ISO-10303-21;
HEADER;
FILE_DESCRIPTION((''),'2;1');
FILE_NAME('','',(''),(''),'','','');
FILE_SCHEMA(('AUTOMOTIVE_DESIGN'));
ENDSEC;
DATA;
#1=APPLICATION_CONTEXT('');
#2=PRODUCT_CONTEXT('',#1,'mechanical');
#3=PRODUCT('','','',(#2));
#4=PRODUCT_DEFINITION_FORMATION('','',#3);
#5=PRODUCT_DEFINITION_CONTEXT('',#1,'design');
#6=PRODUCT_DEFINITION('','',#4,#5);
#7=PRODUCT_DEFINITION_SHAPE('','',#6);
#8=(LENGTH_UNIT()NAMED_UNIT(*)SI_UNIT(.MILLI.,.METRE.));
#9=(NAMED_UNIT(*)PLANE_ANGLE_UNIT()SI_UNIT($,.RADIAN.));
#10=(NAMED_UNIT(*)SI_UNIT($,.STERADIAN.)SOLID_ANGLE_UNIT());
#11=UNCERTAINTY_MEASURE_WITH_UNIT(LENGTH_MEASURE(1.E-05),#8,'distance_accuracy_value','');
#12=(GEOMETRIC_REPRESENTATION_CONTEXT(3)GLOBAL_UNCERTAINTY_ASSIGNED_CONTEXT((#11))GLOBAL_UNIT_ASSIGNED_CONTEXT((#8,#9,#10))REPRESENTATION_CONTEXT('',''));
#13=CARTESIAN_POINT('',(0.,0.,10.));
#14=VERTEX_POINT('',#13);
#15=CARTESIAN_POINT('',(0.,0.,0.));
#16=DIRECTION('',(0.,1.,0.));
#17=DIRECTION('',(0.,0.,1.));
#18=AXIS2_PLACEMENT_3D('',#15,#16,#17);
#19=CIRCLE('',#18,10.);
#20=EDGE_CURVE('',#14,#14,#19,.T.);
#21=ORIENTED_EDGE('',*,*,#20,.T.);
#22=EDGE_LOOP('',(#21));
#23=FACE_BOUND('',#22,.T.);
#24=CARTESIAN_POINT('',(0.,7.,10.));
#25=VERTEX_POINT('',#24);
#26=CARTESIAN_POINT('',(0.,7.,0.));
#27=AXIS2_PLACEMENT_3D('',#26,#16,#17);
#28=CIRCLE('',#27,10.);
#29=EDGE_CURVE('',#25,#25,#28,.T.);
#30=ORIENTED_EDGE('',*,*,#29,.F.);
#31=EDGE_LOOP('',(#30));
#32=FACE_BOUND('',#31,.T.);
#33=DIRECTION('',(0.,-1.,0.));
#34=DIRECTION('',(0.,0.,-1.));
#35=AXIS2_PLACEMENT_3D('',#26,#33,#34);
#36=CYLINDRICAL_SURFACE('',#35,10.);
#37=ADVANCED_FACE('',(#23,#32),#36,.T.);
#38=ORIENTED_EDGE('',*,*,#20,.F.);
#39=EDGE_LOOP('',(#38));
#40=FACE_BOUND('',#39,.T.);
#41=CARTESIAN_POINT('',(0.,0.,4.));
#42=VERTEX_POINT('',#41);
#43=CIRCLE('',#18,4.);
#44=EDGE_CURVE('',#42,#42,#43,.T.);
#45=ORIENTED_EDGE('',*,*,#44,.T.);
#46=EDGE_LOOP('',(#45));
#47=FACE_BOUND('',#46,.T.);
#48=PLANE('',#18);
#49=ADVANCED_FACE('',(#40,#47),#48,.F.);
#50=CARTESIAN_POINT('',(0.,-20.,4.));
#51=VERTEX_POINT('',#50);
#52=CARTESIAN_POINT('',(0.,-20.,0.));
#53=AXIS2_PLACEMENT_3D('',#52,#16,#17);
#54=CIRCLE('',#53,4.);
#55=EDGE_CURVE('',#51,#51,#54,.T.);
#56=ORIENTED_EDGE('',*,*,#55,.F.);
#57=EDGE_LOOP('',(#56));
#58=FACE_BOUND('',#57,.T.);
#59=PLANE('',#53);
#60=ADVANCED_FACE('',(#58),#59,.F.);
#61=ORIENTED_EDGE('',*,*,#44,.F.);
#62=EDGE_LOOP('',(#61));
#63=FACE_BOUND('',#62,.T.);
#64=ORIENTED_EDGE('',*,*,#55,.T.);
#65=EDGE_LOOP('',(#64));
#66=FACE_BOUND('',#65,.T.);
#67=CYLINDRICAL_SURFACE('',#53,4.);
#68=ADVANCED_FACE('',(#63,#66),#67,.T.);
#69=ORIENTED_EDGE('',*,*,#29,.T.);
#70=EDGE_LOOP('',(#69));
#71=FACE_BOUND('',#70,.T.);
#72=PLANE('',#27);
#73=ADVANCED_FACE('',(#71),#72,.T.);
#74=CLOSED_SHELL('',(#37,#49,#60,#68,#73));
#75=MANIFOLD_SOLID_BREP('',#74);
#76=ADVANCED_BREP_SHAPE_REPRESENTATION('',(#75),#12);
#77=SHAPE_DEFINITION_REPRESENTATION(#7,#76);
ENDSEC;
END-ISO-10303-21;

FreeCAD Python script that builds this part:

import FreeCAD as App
import Part
import Sketcher

V = App.Vector

doc = App.newDocument("Part")
params = doc.addObject("Spreadsheet::Sheet", "Params")
for row, (alias, value) in enumerate([
    ("sketch1_diameter", "20 mm"),
    ("pad1_length", "7 mm"),
    ("sketch2_diameter", "8 mm"),
    ("pad2_length", "20 mm"),
], start=1):
    params.set(f"A{row}", alias)
    params.set(f"B{row}", "=" + value)
    params.setAlias(f"B{row}", alias)

body = doc.addObject("PartDesign::Body", "Body")

# Sketch on XZ plane
sketch1 = doc.addObject("Sketcher::SketchObject", "Sketch")
body.addObject(sketch1)
sketch1.AttachmentSupport = (doc.XZ_Plane, [""])
sketch1.MapMode = "FlatFace"
sketch1.addGeometry(Part.Circle(V(0, 0, 0), V(0, 0, 1), 10), False)
sketch1.addConstraint(Sketcher.Constraint("Coincident", 0, 3, -1, 1))
sketch1.addConstraint(Sketcher.Constraint("Diameter", 0, 20.0))
sketch1.setExpression("Constraints[1]", "Params.sketch1_diameter")
pad1 = doc.addObject("PartDesign::Pad", "Pad")
body.addObject(pad1)
pad1.Profile = sketch1
pad1.setExpression("Length", "Params.pad1_length")
pad1.Reversed = True

# Sketch on XZ plane
sketch2 = doc.addObject("Sketcher::SketchObject", "Sketch001")
body.addObject(sketch2)
sketch2.AttachmentSupport = (doc.XZ_Plane, [""])
sketch2.MapMode = "FlatFace"
sketch2.addGeometry(Part.Circle(V(0, 0, 0), V(0, 0, 1), 4), False)
sketch2.addConstraint(Sketcher.Constraint("Coincident", 0, 3, -1, 1))
sketch2.addConstraint(Sketcher.Constraint("Diameter", 0, 8.0))
sketch2.setExpression("Constraints[1]", "Params.sketch2_diameter")
pad2 = doc.addObject("PartDesign::Pad", "Pad001")
body.addObject(pad2)
pad2.Profile = sketch2
pad2.setExpression("Length", "Params.pad2_length")

doc.recompute()
